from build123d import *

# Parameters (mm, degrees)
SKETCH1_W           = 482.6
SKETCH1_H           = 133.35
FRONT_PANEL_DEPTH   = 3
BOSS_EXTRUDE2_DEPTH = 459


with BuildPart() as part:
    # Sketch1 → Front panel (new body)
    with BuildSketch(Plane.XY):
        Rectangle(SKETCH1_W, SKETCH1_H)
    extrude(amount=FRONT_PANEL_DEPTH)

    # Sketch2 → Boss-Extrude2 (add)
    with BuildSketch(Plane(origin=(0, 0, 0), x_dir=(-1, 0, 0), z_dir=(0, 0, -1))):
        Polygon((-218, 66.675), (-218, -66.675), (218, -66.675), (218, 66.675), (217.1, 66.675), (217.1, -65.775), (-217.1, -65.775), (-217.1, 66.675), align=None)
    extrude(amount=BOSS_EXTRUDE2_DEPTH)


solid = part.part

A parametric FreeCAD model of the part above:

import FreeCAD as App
import Part
import Sketcher
Q = App.Units.Quantity

doc = App.newDocument("Part")
body = doc.addObject("PartDesign::Body", "Body")

# Sketch on XY plane
sketch1 = body.newObject("Sketcher::SketchObject", "Sketch")
sketch1.AttachmentSupport = (doc.getObject("XY_Plane"), [""])
sketch1.MapMode = "FlatFace"
sketch1.addGeometry(Part.LineSegment(App.Vector(-241, 67, 0), App.Vector(-241, -67, 0)), False)
sketch1.addGeometry(Part.LineSegment(App.Vector(-241, -67, 0), App.Vector(241, -67, 0)), False)
sketch1.addGeometry(Part.LineSegment(App.Vector(241, -67, 0), App.Vector(241, 67, 0)), False)
sketch1.addGeometry(Part.LineSegment(App.Vector(241, 67, 0), App.Vector(-241, 67, 0)), False)
sketch1.addConstraint(Sketcher.Constraint("Coincident", 0, 2, 1, 1))
sketch1.addConstraint(Sketcher.Constraint("Coincident", 1, 2, 2, 1))
sketch1.addConstraint(Sketcher.Constraint("Coincident", 2, 2, 3, 1))
sketch1.addConstraint(Sketcher.Constraint("Coincident", 3, 2, 0, 1))
sketch1.addConstraint(Sketcher.Constraint("Vertical", 0))
sketch1.addConstraint(Sketcher.Constraint("Horizontal", 1))
sketch1.addConstraint(Sketcher.Constraint("Vertical", 2))
sketch1.addConstraint(Sketcher.Constraint("Horizontal", 3))
sketch1.addConstraint(Sketcher.Constraint("Symmetric", 0, 2, 2, 2, -1, 1))
sketch1.addConstraint(Sketcher.Constraint("DistanceX", 1, 1, 1, 2, Q("482.6 mm")))
sketch1.addConstraint(Sketcher.Constraint("DistanceY", 0, 2, 0, 1, Q("133.35 mm")))
pad1 = body.newObject("PartDesign::Pad", "Pad")
pad1.Profile = sketch1
pad1.Length = 3

# Sketch on XY plane
sketch2 = body.newObject("Sketcher::SketchObject", "Sketch001")
sketch2.AttachmentSupport = (doc.getObject("XY_Plane"), [""])
sketch2.MapMode = "FlatFace"
sketch2.addGeometry(Part.LineSegment(App.Vector(218, 66.7, 0), App.Vector(218, -66.7, 0)), False)
sketch2.addGeometry(Part.LineSegment(App.Vector(218, -66.7, 0), App.Vector(-218, -66.7, 0)), False)
sketch2.addGeometry(Part.LineSegment(App.Vector(-218, -66.7, 0), App.Vector(-218, 66.7, 0)), False)
sketch2.addGeometry(Part.LineSegment(App.Vector(-218, 66.7, 0), App.Vector(-217.1, 66.7, 0)), False)
sketch2.addGeometry(Part.LineSegment(App.Vector(-217.1, 66.7, 0), App.Vector(-217.1, -65.8, 0)), False)
sketch2.addGeometry(Part.LineSegment(App.Vector(-217.1, -65.8, 0), App.Vector(217.1, -65.8, 0)), False)
sketch2.addGeometry(Part.LineSegment(App.Vector(217.1, -65.8, 0), App.Vector(217.1, 66.7, 0)), False)
sketch2.addGeometry(Part.LineSegment(App.Vector(217.1, 66.7, 0), App.Vector(218, 66.7, 0)), False)
sketch2.addConstraint(Sketcher.Constraint("Coincident", 0, 2, 1, 1))
sketch2.addConstraint(Sketcher.Constraint("Coincident", 1, 2, 2, 1))
sketch2.addConstraint(Sketcher.Constraint("Coincident", 2, 2, 3, 1))
sketch2.addConstraint(Sketcher.Constraint("Coincident", 3, 2, 4, 1))
sketch2.addConstraint(Sketcher.Constraint("Coincident", 4, 2, 5, 1))
sketch2.addConstraint(Sketcher.Constraint("Coincident", 5, 2, 6, 1))
sketch2.addConstraint(Sketcher.Constraint("Coincident", 6, 2, 7, 1))
sketch2.addConstraint(Sketcher.Constraint("Coincident", 7, 2, 0, 1))
sketch2.addConstraint(Sketcher.Constraint("Vertical", 0))
sketch2.addConstraint(Sketcher.Constraint("Horizontal", 1))
sketch2.addConstraint(Sketcher.Constraint("Vertical", 2))
sketch2.addConstraint(Sketcher.Constraint("Horizontal", 3))
sketch2.addConstraint(Sketcher.Constraint("Vertical", 4))
sketch2.addConstraint(Sketcher.Constraint("Horizontal", 5))
sketch2.addConstraint(Sketcher.Constraint("Vertical", 6))
sketch2.addConstraint(Sketcher.Constraint("Horizontal", 7))
sketch2.addConstraint(Sketcher.Constraint("Symmetric", 0, 2, 2, 2, -1, 1))
sketch2.addConstraint(Sketcher.Constraint("Symmetric", 3, 2, 6, 2, -2))
sketch2.addConstraint(Sketcher.Constraint("DistanceX", 1, 2, 1, 1, Q("436 mm")))
sketch2.addConstraint(Sketcher.Constraint("DistanceX", 3, 1, 3, 2, Q("0.9 mm")))
sketch2.addConstraint(Sketcher.Constraint("DistanceY", 0, 2, 0, 1, Q("133.35 mm")))
sketch2.addConstraint(Sketcher.Constraint("DistanceY", 4, 2, 4, 1, Q("132.45 mm")))
pad2 = body.newObject("PartDesign::Pad", "Pad001")
pad2.Profile = sketch2
pad2.Length = 459
pad2.Reversed = True

doc.recompute()
